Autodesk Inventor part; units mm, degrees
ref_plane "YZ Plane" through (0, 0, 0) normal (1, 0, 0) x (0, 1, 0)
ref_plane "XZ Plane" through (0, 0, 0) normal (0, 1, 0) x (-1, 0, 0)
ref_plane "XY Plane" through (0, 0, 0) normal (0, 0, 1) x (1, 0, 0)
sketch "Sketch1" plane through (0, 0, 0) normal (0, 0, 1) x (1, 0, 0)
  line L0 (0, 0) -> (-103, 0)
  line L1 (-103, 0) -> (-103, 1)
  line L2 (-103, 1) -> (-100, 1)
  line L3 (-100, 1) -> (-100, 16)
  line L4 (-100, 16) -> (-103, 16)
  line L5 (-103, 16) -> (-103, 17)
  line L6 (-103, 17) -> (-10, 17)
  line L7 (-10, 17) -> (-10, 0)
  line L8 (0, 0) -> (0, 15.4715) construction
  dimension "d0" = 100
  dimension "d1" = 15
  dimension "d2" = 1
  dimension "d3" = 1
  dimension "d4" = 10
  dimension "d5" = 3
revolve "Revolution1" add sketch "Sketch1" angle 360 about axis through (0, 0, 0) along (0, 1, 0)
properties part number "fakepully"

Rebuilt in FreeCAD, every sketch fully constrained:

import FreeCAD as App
import Part
import Sketcher
Q = App.Units.Quantity


def add_polygon(sketch, points):
    """Adds a closed chain of lines whose ends are joined by coincident constraints."""
    first, n = sketch.GeometryCount, len(points)
    for a, b in zip(points, points[1:] + points[:1]):
        sketch.addGeometry(Part.LineSegment(App.Vector(*a, 0), App.Vector(*b, 0)), False)
    for i in range(n):
        sketch.addConstraint(Sketcher.Constraint("Coincident", first + i, 2, first + (i + 1) % n, 1))

doc = App.newDocument("Part")
params = doc.addObject("Spreadsheet::Sheet", "Params")
for row, (alias, value) in enumerate([
    ("sketch1_width", "3 mm"),
    ("sketch1_height", "1 mm"),
    ("sketch1_height2", "15 mm"),
    ("revolution_angle", "360 deg"),
], start=1):
    params.set(f"A{row}", alias)
    params.set(f"B{row}", "=" + value)
    params.setAlias(f"B{row}", alias)

body = doc.addObject("PartDesign::Body", "Body")

sketch1 = body.newObject("Sketcher::SketchObject", "Sketch")
sketch1.AttachmentSupport = (doc.getObject("XY_Plane"), [""])
sketch1.MapMode = "FlatFace"
add_polygon(sketch1, [(-103, 0), (-10, 0), (-10, 17), (-103, 17), (-103, 16), (-100, 16), (-100, 1), (-103, 1)])
sketch1.addConstraint([
    Sketcher.Constraint("Horizontal", 0),
    Sketcher.Constraint("Vertical", 1),
    Sketcher.Constraint("Horizontal", 2),
    Sketcher.Constraint("Vertical", 3),
    Sketcher.Constraint("Horizontal", 4),
    Sketcher.Constraint("Vertical", 5),
    Sketcher.Constraint("Horizontal", 6),
    Sketcher.Constraint("Vertical", 7),
    Sketcher.Constraint("PointOnObject", 0, 2, -1),
    Sketcher.Constraint("Vertical", 3, 2, 6, 2),
    Sketcher.Constraint("Equal", 3, 7),
    Sketcher.Constraint("DistanceX", 4, 1, 4, 2, Q("3 mm")),
    Sketcher.Constraint("DistanceY", 3, 2, 3, 1, Q("1 mm")),
    Sketcher.Constraint("DistanceY", 5, 2, 5, 1, Q("15 mm")),
    Sketcher.Constraint("DistanceX", 0, 2, -1, 1, Q("10 mm")),
    Sketcher.Constraint("DistanceX", 4, 2, -1, 1, Q("100 mm")),
])
sketch1.setExpression("Constraints[19]", "Params.sketch1_width")
sketch1.setExpression("Constraints[20]", "Params.sketch1_height")
sketch1.setExpression("Constraints[21]", "Params.sketch1_height2")
revolution = body.newObject("PartDesign::Revolution", "Revolution")
revolution.Profile = sketch1
revolution.ReferenceAxis = (sketch1, ["V_Axis"])
revolution.setExpression("Angle", "Params.revolution_angle")

doc.recompute()
